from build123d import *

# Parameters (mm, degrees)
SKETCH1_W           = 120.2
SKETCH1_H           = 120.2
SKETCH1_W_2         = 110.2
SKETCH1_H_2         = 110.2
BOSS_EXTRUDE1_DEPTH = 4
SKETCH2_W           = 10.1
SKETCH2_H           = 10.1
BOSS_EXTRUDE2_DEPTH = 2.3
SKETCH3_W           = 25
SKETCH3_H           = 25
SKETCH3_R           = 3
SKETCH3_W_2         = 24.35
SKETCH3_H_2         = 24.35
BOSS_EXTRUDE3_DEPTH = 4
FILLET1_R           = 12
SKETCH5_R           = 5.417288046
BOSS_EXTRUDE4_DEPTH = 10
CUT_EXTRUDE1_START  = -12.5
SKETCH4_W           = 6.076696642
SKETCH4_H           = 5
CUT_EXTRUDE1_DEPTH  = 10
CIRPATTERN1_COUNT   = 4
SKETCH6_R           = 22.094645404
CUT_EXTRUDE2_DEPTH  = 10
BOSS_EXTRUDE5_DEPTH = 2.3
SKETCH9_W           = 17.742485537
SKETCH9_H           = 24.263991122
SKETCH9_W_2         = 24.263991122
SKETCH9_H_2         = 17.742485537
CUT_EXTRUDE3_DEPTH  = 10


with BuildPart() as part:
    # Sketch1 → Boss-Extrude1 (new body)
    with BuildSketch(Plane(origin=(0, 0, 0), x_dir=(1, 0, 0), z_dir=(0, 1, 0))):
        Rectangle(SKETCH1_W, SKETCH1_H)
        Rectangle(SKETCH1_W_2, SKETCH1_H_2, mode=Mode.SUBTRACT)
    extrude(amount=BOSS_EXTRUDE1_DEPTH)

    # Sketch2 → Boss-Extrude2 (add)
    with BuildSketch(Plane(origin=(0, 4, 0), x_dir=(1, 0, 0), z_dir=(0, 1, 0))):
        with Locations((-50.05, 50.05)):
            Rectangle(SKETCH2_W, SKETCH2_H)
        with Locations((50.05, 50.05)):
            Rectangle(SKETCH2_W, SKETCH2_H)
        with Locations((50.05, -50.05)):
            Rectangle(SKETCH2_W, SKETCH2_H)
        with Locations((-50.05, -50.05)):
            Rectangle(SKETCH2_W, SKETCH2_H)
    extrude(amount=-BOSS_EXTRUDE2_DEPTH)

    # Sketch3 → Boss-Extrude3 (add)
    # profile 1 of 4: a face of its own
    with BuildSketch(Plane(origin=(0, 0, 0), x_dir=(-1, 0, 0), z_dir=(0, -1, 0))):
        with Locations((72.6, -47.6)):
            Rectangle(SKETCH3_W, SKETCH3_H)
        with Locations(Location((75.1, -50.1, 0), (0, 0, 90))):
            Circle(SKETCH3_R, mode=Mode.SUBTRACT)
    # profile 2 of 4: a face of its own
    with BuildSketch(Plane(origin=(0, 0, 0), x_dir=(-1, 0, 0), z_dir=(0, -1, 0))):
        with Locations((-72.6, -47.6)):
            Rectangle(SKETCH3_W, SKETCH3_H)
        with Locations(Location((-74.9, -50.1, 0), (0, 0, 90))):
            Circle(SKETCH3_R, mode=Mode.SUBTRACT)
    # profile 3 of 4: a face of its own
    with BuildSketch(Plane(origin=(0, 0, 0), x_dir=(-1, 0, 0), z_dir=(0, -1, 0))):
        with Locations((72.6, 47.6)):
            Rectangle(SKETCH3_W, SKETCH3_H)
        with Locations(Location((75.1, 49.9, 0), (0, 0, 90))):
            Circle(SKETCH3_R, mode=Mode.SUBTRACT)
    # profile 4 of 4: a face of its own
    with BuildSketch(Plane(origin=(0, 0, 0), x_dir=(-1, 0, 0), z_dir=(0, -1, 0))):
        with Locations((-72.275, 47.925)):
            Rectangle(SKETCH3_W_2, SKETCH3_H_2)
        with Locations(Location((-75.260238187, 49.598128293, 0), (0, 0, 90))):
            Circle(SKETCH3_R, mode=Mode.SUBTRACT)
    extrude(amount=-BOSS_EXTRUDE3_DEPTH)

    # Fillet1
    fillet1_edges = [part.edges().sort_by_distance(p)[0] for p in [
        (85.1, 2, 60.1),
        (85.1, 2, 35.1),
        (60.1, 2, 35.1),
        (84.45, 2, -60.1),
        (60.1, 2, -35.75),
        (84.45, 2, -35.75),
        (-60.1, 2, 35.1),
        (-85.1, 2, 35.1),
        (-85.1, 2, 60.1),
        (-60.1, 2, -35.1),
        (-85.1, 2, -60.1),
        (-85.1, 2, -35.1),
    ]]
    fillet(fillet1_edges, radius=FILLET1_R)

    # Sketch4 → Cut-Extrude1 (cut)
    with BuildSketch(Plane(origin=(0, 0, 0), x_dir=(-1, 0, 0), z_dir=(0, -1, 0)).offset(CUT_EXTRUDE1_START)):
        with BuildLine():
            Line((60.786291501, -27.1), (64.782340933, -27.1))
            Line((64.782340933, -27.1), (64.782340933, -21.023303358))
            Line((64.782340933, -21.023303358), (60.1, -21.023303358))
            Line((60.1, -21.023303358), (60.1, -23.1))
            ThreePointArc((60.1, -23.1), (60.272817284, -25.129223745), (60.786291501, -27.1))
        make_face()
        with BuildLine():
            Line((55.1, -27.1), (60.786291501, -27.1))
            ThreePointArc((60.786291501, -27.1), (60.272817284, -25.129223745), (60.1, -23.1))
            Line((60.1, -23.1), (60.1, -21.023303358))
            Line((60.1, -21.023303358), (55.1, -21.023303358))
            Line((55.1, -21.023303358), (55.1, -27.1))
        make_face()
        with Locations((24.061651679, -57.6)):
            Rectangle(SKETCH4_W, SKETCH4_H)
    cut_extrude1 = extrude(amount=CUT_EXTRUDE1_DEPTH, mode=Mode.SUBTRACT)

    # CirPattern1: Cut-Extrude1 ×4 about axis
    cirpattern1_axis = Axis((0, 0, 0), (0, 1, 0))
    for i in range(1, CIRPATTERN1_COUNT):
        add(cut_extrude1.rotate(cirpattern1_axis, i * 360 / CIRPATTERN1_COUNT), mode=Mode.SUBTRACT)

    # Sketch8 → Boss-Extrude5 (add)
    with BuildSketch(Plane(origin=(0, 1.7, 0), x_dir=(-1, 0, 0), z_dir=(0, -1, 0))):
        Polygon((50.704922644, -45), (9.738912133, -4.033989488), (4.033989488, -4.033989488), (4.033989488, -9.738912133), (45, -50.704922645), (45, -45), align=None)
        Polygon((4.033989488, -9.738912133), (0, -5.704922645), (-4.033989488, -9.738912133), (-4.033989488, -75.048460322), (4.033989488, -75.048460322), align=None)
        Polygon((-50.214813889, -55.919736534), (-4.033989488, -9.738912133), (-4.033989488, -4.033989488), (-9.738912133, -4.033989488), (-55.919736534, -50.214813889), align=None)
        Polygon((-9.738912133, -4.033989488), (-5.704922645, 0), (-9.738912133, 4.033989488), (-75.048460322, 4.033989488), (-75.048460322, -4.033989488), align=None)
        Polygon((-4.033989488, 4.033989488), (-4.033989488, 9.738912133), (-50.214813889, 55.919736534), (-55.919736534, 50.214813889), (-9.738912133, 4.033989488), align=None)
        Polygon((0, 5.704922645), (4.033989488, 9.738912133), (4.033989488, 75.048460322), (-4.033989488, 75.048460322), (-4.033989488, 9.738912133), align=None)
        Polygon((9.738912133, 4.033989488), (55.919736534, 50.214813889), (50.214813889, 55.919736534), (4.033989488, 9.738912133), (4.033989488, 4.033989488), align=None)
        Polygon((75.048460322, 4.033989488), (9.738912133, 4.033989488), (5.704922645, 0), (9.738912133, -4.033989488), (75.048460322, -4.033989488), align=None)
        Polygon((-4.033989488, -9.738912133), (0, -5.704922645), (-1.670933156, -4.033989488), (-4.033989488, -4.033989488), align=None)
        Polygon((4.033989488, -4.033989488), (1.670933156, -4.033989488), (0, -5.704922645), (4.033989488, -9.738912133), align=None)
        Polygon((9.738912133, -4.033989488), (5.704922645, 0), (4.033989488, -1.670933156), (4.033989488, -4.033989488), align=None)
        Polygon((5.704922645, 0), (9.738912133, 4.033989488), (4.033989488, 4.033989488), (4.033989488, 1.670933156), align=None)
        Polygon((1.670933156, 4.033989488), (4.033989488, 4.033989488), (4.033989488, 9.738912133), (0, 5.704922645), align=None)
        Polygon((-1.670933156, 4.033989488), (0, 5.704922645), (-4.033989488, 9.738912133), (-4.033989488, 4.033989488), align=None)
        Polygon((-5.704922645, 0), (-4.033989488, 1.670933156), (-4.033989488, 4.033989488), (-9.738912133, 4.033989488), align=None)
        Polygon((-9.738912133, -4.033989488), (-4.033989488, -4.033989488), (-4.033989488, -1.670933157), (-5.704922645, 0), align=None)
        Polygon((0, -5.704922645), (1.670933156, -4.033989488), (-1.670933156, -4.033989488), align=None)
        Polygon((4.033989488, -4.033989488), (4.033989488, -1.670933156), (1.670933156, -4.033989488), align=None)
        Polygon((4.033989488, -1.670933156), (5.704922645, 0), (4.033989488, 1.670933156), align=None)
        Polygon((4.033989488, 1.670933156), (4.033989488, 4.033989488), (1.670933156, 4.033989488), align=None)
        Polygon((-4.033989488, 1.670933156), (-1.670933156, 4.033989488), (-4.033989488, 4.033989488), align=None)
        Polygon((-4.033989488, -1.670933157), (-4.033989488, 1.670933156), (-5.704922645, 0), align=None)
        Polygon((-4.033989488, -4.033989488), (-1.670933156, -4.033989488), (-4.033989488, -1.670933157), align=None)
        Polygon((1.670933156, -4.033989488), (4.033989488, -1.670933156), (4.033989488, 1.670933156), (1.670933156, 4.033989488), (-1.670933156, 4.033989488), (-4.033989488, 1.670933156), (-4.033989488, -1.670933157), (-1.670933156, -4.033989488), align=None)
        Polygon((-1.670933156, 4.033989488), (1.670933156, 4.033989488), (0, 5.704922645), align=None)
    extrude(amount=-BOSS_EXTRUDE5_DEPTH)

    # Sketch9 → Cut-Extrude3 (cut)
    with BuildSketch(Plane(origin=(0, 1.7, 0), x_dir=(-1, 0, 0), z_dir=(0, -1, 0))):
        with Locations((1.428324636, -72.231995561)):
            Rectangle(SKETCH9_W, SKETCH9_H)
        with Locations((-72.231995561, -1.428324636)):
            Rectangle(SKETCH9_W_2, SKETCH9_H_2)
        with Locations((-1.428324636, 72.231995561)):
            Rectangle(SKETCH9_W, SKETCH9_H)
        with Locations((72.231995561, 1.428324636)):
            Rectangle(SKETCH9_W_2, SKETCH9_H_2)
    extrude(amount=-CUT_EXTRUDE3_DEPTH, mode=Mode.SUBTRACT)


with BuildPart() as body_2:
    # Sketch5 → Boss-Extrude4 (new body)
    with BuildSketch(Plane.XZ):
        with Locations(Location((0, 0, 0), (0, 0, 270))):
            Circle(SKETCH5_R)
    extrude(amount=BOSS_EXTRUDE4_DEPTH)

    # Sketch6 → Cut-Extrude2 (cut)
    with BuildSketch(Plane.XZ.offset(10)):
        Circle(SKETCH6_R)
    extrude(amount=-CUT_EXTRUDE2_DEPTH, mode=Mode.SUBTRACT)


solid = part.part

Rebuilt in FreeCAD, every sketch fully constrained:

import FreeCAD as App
import Part
import Sketcher

V = App.Vector
Q = App.Units.Quantity


def edges_at(feature, points):
    """Names of the edges that pass closest to the given points."""
    edges = feature.Shape.Edges
    near = lambda p: min(range(len(edges)), key=lambda i: edges[i].distToShape(Part.Vertex(*p))[0])
    return sorted({f"Edge{near(p) + 1}" for p in points})


def add_polygon(sketch, points):
    """Adds a closed chain of lines whose ends are joined by coincident constraints."""
    first, n = sketch.GeometryCount, len(points)
    for a, b in zip(points, points[1:] + points[:1]):
        sketch.addGeometry(Part.LineSegment(App.Vector(*a, 0), App.Vector(*b, 0)), False)
    for i in range(n):
        sketch.addConstraint(Sketcher.Constraint("Coincident", first + i, 2, first + (i + 1) % n, 1))

doc = App.newDocument("Part")
body = doc.addObject("PartDesign::Body", "Body")

# Sketch on XZ plane
sketch1 = doc.addObject("Sketcher::SketchObject", "Sketch")
body.addObject(sketch1)
sketch1.AttachmentSupport = (doc.XZ_Plane, [""])
sketch1.MapMode = "FlatFace"
add_polygon(sketch1, [(-60.1, -60.1), (-60.1, 60.1), (60.1, 60.1), (60.1, -60.1)])  # lines 0-3
add_polygon(sketch1, [(55.1, 55.1), (-55.1, 55.1), (-55.1, -55.1), (55.1, -55.1)])  # lines 4-7
sketch1.addConstraint([
    Sketcher.Constraint("Vertical", 0),
    Sketcher.Constraint("Horizontal", 1),
    Sketcher.Constraint("Vertical", 2),
    Sketcher.Constraint("Horizontal", 3),
    Sketcher.Constraint("Horizontal", 4),
    Sketcher.Constraint("Vertical", 5),
    Sketcher.Constraint("Horizontal", 6),
    Sketcher.Constraint("Vertical", 7),
    Sketcher.Constraint("Symmetric", 0, 2, 2, 2, -1, 1),
    Sketcher.Constraint("Symmetric", 4, 2, 6, 2, -1, 1),
    Sketcher.Constraint("Equal", 3, 0),
    Sketcher.Constraint("Equal", 6, 5),
    Sketcher.Constraint("DistanceX", 1, 1, 1, 2, Q("120.2 mm")),
    Sketcher.Constraint("DistanceX", 4, 2, 4, 1, Q("110.2 mm")),
])
pad1 = doc.addObject("PartDesign::Pad", "Pad")
body.addObject(pad1)
pad1.Profile = sketch1
pad1.Length = 4
pad1.Reversed = True

# Sketch on XZ plane
sketch2 = doc.addObject("Sketcher::SketchObject", "Sketch001")
body.addObject(sketch2)
sketch2.AttachmentSupport = (doc.XZ_Plane, [""])
sketch2.MapMode = "FlatFace"
sketch2.AttachmentOffset = App.Placement(V(0, 0, -4), App.Rotation())
add_polygon(sketch2, [(-55.1, -55.1), (-55.1, -45), (-45, -45), (-45, -55.1)])  # lines 0-3
add_polygon(sketch2, [(45, -55.1), (45, -45), (55.1, -45), (55.1, -55.1)])  # lines 4-7
add_polygon(sketch2, [(45, 45), (45, 55.1), (55.1, 55.1), (55.1, 45)])  # lines 8-11
add_polygon(sketch2, [(-55.1, 45), (-55.1, 55.1), (-45, 55.1), (-45, 45)])  # lines 12-15
sketch2.addConstraint([
    Sketcher.Constraint("Vertical", 0),
    Sketcher.Constraint("Horizontal", 1),
    Sketcher.Constraint("Vertical", 2),
    Sketcher.Constraint("Horizontal", 3),
    Sketcher.Constraint("Vertical", 4),
    Sketcher.Constraint("Horizontal", 5),
    Sketcher.Constraint("Vertical", 6),
    Sketcher.Constraint("Horizontal", 7),
    Sketcher.Constraint("Vertical", 8),
    Sketcher.Constraint("Horizontal", 9),
    Sketcher.Constraint("Vertical", 10),
    Sketcher.Constraint("Horizontal", 11),
    Sketcher.Constraint("Vertical", 12),
    Sketcher.Constraint("Horizontal", 13),
    Sketcher.Constraint("Vertical", 14),
    Sketcher.Constraint("Horizontal", 15),
    Sketcher.Constraint("Symmetric", 2, 2, 8, 2, -1, 1),
    Sketcher.Constraint("Symmetric", 0, 2, 10, 2, -1, 1),
    Sketcher.Constraint("Symmetric", 6, 2, 12, 2, -1, 1),
    Sketcher.Constraint("Symmetric", 4, 2, 14, 2, -1, 1),
    Sketcher.Constraint("Symmetric", 1, 2, 4, 2, -2),
    Sketcher.Constraint("Symmetric", 3, 2, 6, 2, -2),
    Sketcher.Constraint("Equal", 15, 0),
    Sketcher.Constraint("DistanceX", 1, 1, 1, 2, Q("10.1 mm")),
    Sketcher.Constraint("DistanceY", 0, 2, -1, 1, Q("45 mm")),
    Sketcher.Constraint("DistanceX", 1, 2, -1, 1, Q("45 mm")),
])
pad2 = doc.addObject("PartDesign::Pad", "Pad001")
body.addObject(pad2)
pad2.Profile = sketch2
pad2.Length = 2.3

# Sketch on XZ plane
sketch3 = doc.addObject("Sketcher::SketchObject", "Sketch002")
body.addObject(sketch3)
sketch3.AttachmentSupport = (doc.XZ_Plane, [""])
sketch3.MapMode = "FlatFace"
add_polygon(sketch3, [(-60.1, 35.1), (-60.1, 60.1), (-85.1, 60.1), (-85.1, 35.1)])  # lines 0-3
sketch3.addGeometry(Part.Circle(V(-75.1, 50.1, 0), V(0, 0, 1), 3), False)  # 4
add_polygon(sketch3, [(85.1, 35.1), (85.1, 60.1), (60.1, 60.1), (60.1, 35.1)])  # lines 5-8
sketch3.addGeometry(Part.Circle(V(74.9, 50.1, 0), V(0, 0, 1), 3), False)  # 9
add_polygon(sketch3, [(-60.1, -60.1), (-60.1, -35.1), (-85.1, -35.1), (-85.1, -60.1)])  # lines 10-13
sketch3.addGeometry(Part.Circle(V(-75.1, -49.9, 0), V(0, 0, 1), 3), False)  # 14
add_polygon(sketch3, [(84.45, -60.1), (84.45, -35.75), (60.1, -35.75), (60.1, -60.1)])  # lines 15-18
sketch3.addGeometry(Part.Circle(V(75.260238, -49.598128, 0), V(0, 0, 1), 3), False)  # 19
sketch3.addConstraint([
    Sketcher.Constraint("Vertical", 0),
    Sketcher.Constraint("Horizontal", 1),
    Sketcher.Constraint("Vertical", 2),
    Sketcher.Constraint("Horizontal", 3),
    Sketcher.Constraint("Vertical", 5),
    Sketcher.Constraint("Horizontal", 6),
    Sketcher.Constraint("Vertical", 7),
    Sketcher.Constraint("Horizontal", 8),
    Sketcher.Constraint("Vertical", 10),
    Sketcher.Constraint("Horizontal", 11),
    Sketcher.Constraint("Vertical", 12),
    Sketcher.Constraint("Horizontal", 13),
    Sketcher.Constraint("Vertical", 15),
    Sketcher.Constraint("Horizontal", 16),
    Sketcher.Constraint("Vertical", 17),
    Sketcher.Constraint("Horizontal", 18),
    Sketcher.Constraint("Equal", 4, 9),
    Sketcher.Constraint("Equal", 9, 14),
    Sketcher.Constraint("Equal", 14, 19),
    Sketcher.Constraint("Symmetric", 7, 2, 10, 2, -1, 1),
    Sketcher.Constraint("Symmetric", 5, 2, 12, 2, -1, 1),
    Sketcher.Constraint("Symmetric", 0, 2, 17, 2, -1, 1),
    Sketcher.Constraint("Symmetric", 1, 2, 5, 2, -2),
    Sketcher.Constraint("Symmetric", 3, 2, 7, 2, -2),
    Sketcher.Constraint("Horizontal", 4, 3, 9, 3),
    Sketcher.Constraint("Vertical", 4, 3, 14, 3),
    Sketcher.Constraint("Equal", 13, 0),
    Sketcher.Constraint("Equal", 18, 15),
    Sketcher.Constraint("Diameter", 4, Q("6 mm")),
    Sketcher.Constraint("DistanceX", 1, 2, 1, 1, Q("25 mm")),
    Sketcher.Constraint("DistanceX", 4, 3, 9, 3, Q("150 mm")),
    Sketcher.Constraint("DistanceY", 14, 3, 4, 3, Q("100 mm")),
    Sketcher.Constraint("DistanceX", 4, 3, 0, 2, Q("15 mm")),
    Sketcher.Constraint("DistanceY", 4, 3, 0, 2, Q("10 mm")),
    Sketcher.Constraint("DistanceX", 16, 2, 16, 1, Q("24.35 mm")),
    Sketcher.Constraint("DistanceX", 4, 3, -1, 1, Q("75.1 mm")),
    Sketcher.Constraint("DistanceY", -1, 1, 4, 3, Q("50.1 mm")),
    Sketcher.Constraint("DistanceX", -1, 1, 19, 3, Q("75.260238 mm")),
    Sketcher.Constraint("DistanceY", 19, 3, -1, 1, Q("49.598128 mm")),
])
pad3 = doc.addObject("PartDesign::Pad", "Pad002")
body.addObject(pad3)
pad3.Profile = sketch3
pad3.Length = 4
pad3.Reversed = True
doc.recompute()

fillet = doc.addObject("PartDesign::Fillet", "Fillet")
body.addObject(fillet)
fillet.Base = (pad3, edges_at(pad3, [
    (85.1, 2, 60.1),
    (85.1, 2, 35.1),
    (60.1, 2, 35.1),
    (84.45, 2, -60.1),
    (60.1, 2, -35.75),
    (84.45, 2, -35.75),
    (-60.1, 2, 35.1),
    (-85.1, 2, 35.1),
    (-85.1, 2, 60.1),
    (-60.1, 2, -35.1),
    (-85.1, 2, -60.1),
    (-85.1, 2, -35.1),
]))
fillet.Radius = 12

# Sketch on XZ plane
sketch4 = doc.addObject("Sketcher::SketchObject", "Sketch003")
body.addObject(sketch4)
sketch4.AttachmentSupport = (doc.XZ_Plane, [""])
sketch4.MapMode = "FlatFace"
sketch4.AttachmentOffset = App.Placement(V(0, 0, -12.5), App.Rotation())
add_polygon(sketch4, [(-64.782341, 27.1), (-64.782341, 21.023303), (-55.1, 21.023303), (-55.1, 27.1)])  # lines 0-3
add_polygon(sketch4, [(-21.023303, 55.1), (-21.023303, 60.1), (-27.1, 60.1), (-27.1, 55.1)])  # lines 4-7
sketch4.addConstraint([
    Sketcher.Constraint("Vertical", 0),
    Sketcher.Constraint("Horizontal", 1),
    Sketcher.Constraint("Vertical", 2),
    Sketcher.Constraint("Horizontal", 3),
    Sketcher.Constraint("Vertical", 4),
    Sketcher.Constraint("Horizontal", 5),
    Sketcher.Constraint("Vertical", 6),
    Sketcher.Constraint("Horizontal", 7),
    Sketcher.Constraint("Equal", 7, 0),
    Sketcher.Constraint("DistanceY", 4, 1, 4, 2, Q("5 mm")),
    Sketcher.Constraint("DistanceY", 2, 2, 4, 2, Q("33 mm")),
    Sketcher.Constraint("DistanceX", 2, 2, 5, 2, Q("28 mm")),
    Sketcher.Constraint("DistanceX", 1, 2, -1, 1, Q("55.1 mm")),
    Sketcher.Constraint("DistanceY", -1, 1, 2, 2, Q("27.1 mm")),
    Sketcher.Constraint("DistanceX", 1, 1, 1, 2, Q("9.682341 mm")),
    Sketcher.Constraint("DistanceX", 5, 2, 5, 1, Q("6.076697 mm")),
])
pocket1 = doc.addObject("PartDesign::Pocket", "Pocket")
body.addObject(pocket1)
pocket1.Profile = sketch4
pocket1.Length = 10
pocket1.Reversed = True
doc.recompute()

polarpattern = doc.addObject("PartDesign::PolarPattern", "PolarPattern")
body.addObject(polarpattern)
polarpattern.Originals = [pocket1]
polarpattern.Axis = (doc.Y_Axis, [""])
polarpattern.Angle = 360
polarpattern.Occurrences = 4
body.Tip = polarpattern

# Sketch on XZ plane
sketch5 = doc.addObject("Sketcher::SketchObject", "Sketch004")
body.addObject(sketch5)
sketch5.AttachmentSupport = (doc.XZ_Plane, [""])
sketch5.MapMode = "FlatFace"
sketch5.AttachmentOffset = App.Placement(V(0, 0, -1.7), App.Rotation())
add_polygon(sketch5, [(75.04846, 4.033989), (9.738912, 4.033989), (55.919737, 50.214814), (50.214814, 55.919737), (4.033989, 9.738912), (4.033989, 75.04846), (-4.033989, 75.04846), (-4.033989, 9.738912), (-45, 50.704923), (-45, 45), (-50.704923, 45), (-9.738912, 4.033989), (-75.04846, 4.033989), (-75.04846, -4.033989), (-9.738912, -4.033989), (-55.919737, -50.214814), (-50.214814, -55.919737), (-4.033989, -9.738912), (-4.033989, -75.04846), (4.033989, -75.04846), (4.033989, -9.738912), (50.214814, -55.919737), (55.919737, -50.214814), (9.738912, -4.033989), (75.04846, -4.033989)])  # lines 0-24
sketch5.addConstraint([
    Sketcher.Constraint("Horizontal", 0),
    Sketcher.Constraint("Vertical", 4),
    Sketcher.Constraint("Horizontal", 5),
    Sketcher.Constraint("Vertical", 6),
    Sketcher.Constraint("Vertical", 8),
    Sketcher.Constraint("Horizontal", 9),
    Sketcher.Constraint("Horizontal", 11),
    Sketcher.Constraint("Vertical", 12),
    Sketcher.Constraint("Horizontal", 13),
    Sketcher.Constraint("Vertical", 17),
    Sketcher.Constraint("Horizontal", 18),
    Sketcher.Constraint("Vertical", 19),
    Sketcher.Constraint("Horizontal", 23),
    Sketcher.Constraint("Vertical", 24),
    Sketcher.Constraint("Symmetric", 0, 2, 13, 2, -1, 1),
    Sketcher.Constraint("Symmetric", 1, 2, 14, 2, -1, 1),
    Sketcher.Constraint("Symmetric", 2, 2, 15, 2, -1, 1),
    Sketcher.Constraint("Symmetric", 3, 2, 16, 2, -1, 1),
    Sketcher.Constraint("Symmetric", 5, 2, 18, 2, -1, 1),
    Sketcher.Constraint("Symmetric", 10, 2, 22, 2, -1, 1),
    Sketcher.Constraint("Symmetric", 3, 2, 6, 2, -2),
    Sketcher.Constraint("Symmetric", 0, 2, 10, 2, -2),
    Sketcher.Constraint("Symmetric", 15, 2, 20, 2, -2),
    Sketcher.Constraint("Symmetric", 14, 2, 21, 2, -2),
    Sketcher.Constraint("Perpendicular", 1, 2),
    Sketcher.Constraint("Perpendicular", 2, 3),
    Sketcher.Constraint("Perpendicular", 3, 7),
    Sketcher.Constraint("Parallel", 7, 10),
    Sketcher.Constraint("Perpendicular", 16, 20),
    Sketcher.Constraint("Perpendicular", 20, 21),
    Sketcher.Constraint("Equal", 0, 11),
    Sketcher.Constraint("Equal", 23, 4),
    Sketcher.Constraint("Equal", 9, 8),
    Sketcher.Constraint("Equal", 18, 12),
    Sketcher.Constraint("Equal", 1, 3),
    Sketcher.Constraint("DistanceX", 7, 2, -1, 1, Q("45 mm")),
    Sketcher.Constraint("DistanceX", 0, 2, 0, 1, Q("65.309548 mm")),
    Sketcher.Constraint("DistanceX", 5, 2, 5, 1, Q("8.067979 mm")),
    Sketcher.Constraint("DistanceX", 0, 2, 2, 2, Q("40.475902 mm")),
    Sketcher.Constraint("DistanceX", 5, 2, 0, 2, Q("13.772902 mm")),
])
pad4 = doc.addObject("PartDesign::Pad", "Pad003")
body.addObject(pad4)
pad4.Profile = sketch5
pad4.Length = 2.3
pad4.Reversed = True

# Sketch on XZ plane
sketch6 = doc.addObject("Sketcher::SketchObject", "Sketch005")
body.addObject(sketch6)
sketch6.AttachmentSupport = (doc.XZ_Plane, [""])
sketch6.MapMode = "FlatFace"
sketch6.AttachmentOffset = App.Placement(V(0, 0, -1.7), App.Rotation())
add_polygon(sketch6, [(7.442918, 60.1), (7.442918, 84.363991), (-10.299567, 84.363991), (-10.299567, 60.1)])  # lines 0-3
add_polygon(sketch6, [(84.363991, -7.442918), (84.363991, 10.299567), (60.1, 10.299567), (60.1, -7.442918)])  # lines 4-7
add_polygon(sketch6, [(10.299567, -84.363991), (10.299567, -60.1), (-7.442918, -60.1), (-7.442918, -84.363991)])  # lines 8-11
add_polygon(sketch6, [(-60.1, -10.299567), (-60.1, 7.442918), (-84.363991, 7.442918), (-84.363991, -10.299567)])  # lines 12-15
sketch6.addConstraint([
    Sketcher.Constraint("Vertical", 0),
    Sketcher.Constraint("Horizontal", 1),
    Sketcher.Constraint("Vertical", 2),
    Sketcher.Constraint("Horizontal", 3),
    Sketcher.Constraint("Vertical", 4),
    Sketcher.Constraint("Horizontal", 5),
    Sketcher.Constraint("Vertical", 6),
    Sketcher.Constraint("Horizontal", 7),
    Sketcher.Constraint("Vertical", 8),
    Sketcher.Constraint("Horizontal", 9),
    Sketcher.Constraint("Vertical", 10),
    Sketcher.Constraint("Horizontal", 11),
    Sketcher.Constraint("Vertical", 12),
    Sketcher.Constraint("Horizontal", 13),
    Sketcher.Constraint("Vertical", 14),
    Sketcher.Constraint("Horizontal", 15),
    Sketcher.Constraint("Symmetric", 2, 2, 8, 2, -1, 1),
    Sketcher.Constraint("Symmetric", 0, 2, 10, 2, -1, 1),
    Sketcher.Constraint("Symmetric", 6, 2, 12, 2, -1, 1),
    Sketcher.Constraint("Symmetric", 4, 2, 14, 2, -1, 1),
    Sketcher.Constraint("Equal", 15, 0),
    Sketcher.Constraint("Equal", 11, 4),
    Sketcher.Constraint("DistanceY", -1, 1, 2, 2, Q("60.1 mm")),
    Sketcher.Constraint("DistanceX", -1, 1, 5, 2, Q("60.1 mm")),
    Sketcher.Constraint("DistanceX", 5, 2, 5, 1, Q("24.263991 mm")),
    Sketcher.Constraint("DistanceX", 1, 2, 1, 1, Q("17.742486 mm")),
    Sketcher.Constraint("DistanceX", -1, 1, 0, 2, Q("7.442918 mm")),
    Sketcher.Constraint("DistanceY", 6, 2, -1, 1, Q("7.442918 mm")),
])
pocket2 = doc.addObject("PartDesign::Pocket", "Pocket001")
body.addObject(pocket2)
pocket2.Profile = sketch6
pocket2.Length = 10
body2 = doc.addObject("PartDesign::Body", "Body001")

# Sketch on XZ plane
sketch7 = doc.addObject("Sketcher::SketchObject", "Sketch006")
body2.addObject(sketch7)
sketch7.AttachmentSupport = (doc.getObject("XZ_Plane001"), [""])
sketch7.MapMode = "FlatFace"
sketch7.addGeometry(Part.Circle(V(0, 0, 0), V(0, 0, 1), 5.417288), False)
sketch7.addConstraint([
    Sketcher.Constraint("Coincident", 0, 3, -1, 1),
    Sketcher.Constraint("Diameter", 0, Q("10.834576 mm")),
])
pad5 = doc.addObject("PartDesign::Pad", "Pad004")
body2.addObject(pad5)
pad5.Profile = sketch7
pad5.Length = 10

# Sketch on XZ plane
sketch8 = doc.addObject("Sketcher::SketchObject", "Sketch007")
body2.addObject(sketch8)
sketch8.AttachmentSupport = (doc.getObject("XZ_Plane001"), [""])
sketch8.MapMode = "FlatFace"
sketch8.AttachmentOffset = App.Placement(V(0, 0, 10), App.Rotation())
sketch8.addGeometry(Part.Circle(V(0, 0, 0), V(0, 0, 1), 22.094645), False)
sketch8.addConstraint([
    Sketcher.Constraint("Coincident", 0, 3, -1, 1),
    Sketcher.Constraint("Diameter", 0, Q("44.189291 mm")),
])
pocket3 = doc.addObject("PartDesign::Pocket", "Pocket002")
body2.addObject(pocket3)
pocket3.Profile = sketch8
pocket3.Length = 10

doc.recompute()
